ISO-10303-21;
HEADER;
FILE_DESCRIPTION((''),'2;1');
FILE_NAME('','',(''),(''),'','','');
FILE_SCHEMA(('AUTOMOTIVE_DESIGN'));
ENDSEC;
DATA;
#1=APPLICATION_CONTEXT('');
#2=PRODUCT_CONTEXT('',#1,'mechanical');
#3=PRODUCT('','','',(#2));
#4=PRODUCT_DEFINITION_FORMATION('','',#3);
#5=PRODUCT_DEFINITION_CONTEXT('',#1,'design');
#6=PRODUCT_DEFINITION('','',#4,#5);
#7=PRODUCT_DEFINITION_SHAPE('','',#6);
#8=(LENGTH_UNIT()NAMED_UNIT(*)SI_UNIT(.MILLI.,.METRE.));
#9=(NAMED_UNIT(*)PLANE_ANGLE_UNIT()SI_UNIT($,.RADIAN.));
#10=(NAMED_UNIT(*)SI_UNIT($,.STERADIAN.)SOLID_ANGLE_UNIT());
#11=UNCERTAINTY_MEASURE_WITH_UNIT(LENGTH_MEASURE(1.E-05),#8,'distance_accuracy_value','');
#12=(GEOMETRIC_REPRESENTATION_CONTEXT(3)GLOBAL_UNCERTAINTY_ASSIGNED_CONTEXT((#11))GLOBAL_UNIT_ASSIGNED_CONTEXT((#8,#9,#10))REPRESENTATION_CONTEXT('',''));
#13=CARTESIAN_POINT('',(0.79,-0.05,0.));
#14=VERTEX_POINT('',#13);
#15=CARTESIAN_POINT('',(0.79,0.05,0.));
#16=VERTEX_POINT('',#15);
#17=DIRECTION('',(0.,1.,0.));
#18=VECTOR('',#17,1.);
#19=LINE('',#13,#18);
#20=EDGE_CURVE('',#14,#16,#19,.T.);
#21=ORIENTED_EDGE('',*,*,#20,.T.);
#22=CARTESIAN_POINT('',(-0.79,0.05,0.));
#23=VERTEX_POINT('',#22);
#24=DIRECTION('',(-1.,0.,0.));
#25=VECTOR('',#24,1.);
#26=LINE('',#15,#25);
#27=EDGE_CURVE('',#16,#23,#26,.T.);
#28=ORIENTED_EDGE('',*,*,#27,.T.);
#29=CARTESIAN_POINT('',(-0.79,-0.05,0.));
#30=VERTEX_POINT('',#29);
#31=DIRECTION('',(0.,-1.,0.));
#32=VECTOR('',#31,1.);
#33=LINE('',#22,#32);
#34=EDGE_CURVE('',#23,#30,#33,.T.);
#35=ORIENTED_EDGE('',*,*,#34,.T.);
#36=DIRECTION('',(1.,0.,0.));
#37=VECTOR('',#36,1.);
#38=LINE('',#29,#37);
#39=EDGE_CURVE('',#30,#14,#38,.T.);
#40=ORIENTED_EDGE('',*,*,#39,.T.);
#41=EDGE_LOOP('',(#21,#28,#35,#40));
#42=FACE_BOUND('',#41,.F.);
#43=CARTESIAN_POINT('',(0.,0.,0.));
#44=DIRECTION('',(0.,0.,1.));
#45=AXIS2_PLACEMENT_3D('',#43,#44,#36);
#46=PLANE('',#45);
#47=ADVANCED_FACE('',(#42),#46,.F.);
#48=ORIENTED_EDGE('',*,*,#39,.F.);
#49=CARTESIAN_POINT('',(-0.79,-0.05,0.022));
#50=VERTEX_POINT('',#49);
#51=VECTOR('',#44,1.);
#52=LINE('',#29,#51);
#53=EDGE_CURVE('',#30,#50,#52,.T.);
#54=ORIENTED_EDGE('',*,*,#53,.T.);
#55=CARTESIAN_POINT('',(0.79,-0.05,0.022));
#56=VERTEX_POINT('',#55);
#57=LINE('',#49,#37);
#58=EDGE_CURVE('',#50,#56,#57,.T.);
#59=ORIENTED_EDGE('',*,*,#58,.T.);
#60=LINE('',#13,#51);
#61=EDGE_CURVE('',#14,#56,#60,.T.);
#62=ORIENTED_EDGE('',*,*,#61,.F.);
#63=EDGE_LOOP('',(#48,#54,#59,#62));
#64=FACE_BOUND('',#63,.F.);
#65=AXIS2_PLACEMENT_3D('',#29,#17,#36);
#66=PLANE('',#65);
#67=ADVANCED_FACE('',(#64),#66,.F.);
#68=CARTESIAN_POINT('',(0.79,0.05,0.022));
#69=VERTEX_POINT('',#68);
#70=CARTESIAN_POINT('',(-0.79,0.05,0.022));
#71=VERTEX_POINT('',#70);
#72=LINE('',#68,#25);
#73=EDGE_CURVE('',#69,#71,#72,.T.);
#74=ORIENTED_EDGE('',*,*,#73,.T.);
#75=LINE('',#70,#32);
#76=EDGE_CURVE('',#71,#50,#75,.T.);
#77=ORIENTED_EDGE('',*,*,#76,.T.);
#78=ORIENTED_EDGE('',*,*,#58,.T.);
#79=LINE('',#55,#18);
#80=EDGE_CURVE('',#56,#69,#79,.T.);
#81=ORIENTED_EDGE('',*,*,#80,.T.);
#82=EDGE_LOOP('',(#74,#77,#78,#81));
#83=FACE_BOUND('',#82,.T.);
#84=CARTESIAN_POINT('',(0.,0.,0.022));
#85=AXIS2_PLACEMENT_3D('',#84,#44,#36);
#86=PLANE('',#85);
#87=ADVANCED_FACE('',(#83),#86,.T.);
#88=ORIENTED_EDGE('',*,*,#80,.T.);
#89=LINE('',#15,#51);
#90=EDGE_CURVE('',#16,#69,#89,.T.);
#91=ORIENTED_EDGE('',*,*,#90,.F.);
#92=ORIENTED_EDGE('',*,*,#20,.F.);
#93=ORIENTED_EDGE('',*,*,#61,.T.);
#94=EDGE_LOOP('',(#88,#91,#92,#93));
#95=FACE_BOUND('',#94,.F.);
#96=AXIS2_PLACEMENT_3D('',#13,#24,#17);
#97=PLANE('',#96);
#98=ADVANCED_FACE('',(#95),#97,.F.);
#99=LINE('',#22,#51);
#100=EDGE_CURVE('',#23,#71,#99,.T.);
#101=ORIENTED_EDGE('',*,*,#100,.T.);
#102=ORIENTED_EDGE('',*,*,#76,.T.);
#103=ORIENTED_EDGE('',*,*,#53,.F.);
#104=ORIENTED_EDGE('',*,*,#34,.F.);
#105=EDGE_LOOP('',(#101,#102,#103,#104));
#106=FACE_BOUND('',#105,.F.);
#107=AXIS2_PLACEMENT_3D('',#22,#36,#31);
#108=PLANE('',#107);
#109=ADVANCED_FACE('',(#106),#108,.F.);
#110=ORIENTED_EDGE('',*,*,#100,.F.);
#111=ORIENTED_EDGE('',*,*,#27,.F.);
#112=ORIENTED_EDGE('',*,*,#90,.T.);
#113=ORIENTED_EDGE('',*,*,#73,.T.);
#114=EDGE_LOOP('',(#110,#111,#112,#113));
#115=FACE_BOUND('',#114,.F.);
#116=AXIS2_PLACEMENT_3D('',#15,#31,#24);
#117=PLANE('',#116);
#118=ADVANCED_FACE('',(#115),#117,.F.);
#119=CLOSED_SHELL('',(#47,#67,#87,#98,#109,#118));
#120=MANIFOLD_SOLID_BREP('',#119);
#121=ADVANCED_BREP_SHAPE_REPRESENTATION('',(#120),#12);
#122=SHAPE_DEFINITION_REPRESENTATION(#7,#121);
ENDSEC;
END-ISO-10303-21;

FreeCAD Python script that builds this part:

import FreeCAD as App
import Part
import Sketcher

doc = App.newDocument("Part")
body = doc.addObject("PartDesign::Body", "Body")

# Sketch on XY plane
sketch1 = body.newObject("Sketcher::SketchObject", "Sketch")
sketch1.AttachmentSupport = (doc.getObject("XY_Plane"), [""])
sketch1.MapMode = "FlatFace"
sketch1.addGeometry([
    Part.LineSegment(App.Vector(-0.79, 0.05, 0), App.Vector(-0.79, -0.05, 0)),
    Part.LineSegment(App.Vector(-0.79, -0.05, 0), App.Vector(0.79, -0.05, 0)),
    Part.LineSegment(App.Vector(0.79, -0.05, 0), App.Vector(0.79, 0.05, 0)),
    Part.LineSegment(App.Vector(0.79, 0.05, 0), App.Vector(-0.79, 0.05, 0)),
], False)
sketch1.addConstraint([
    Sketcher.Constraint("Coincident", 0, 2, 1, 1),
    Sketcher.Constraint("Coincident", 1, 2, 2, 1),
    Sketcher.Constraint("Coincident", 2, 2, 3, 1),
    Sketcher.Constraint("Coincident", 3, 2, 0, 1),
    Sketcher.Constraint("Vertical", 0),
    Sketcher.Constraint("Horizontal", 1),
    Sketcher.Constraint("Vertical", 2),
    Sketcher.Constraint("Horizontal", 3),
    Sketcher.Constraint("Symmetric", 0, 2, 2, 2, -1, 1),
    Sketcher.Constraint("DistanceX", 0, 2, -1, 1, 0.79),
    Sketcher.Constraint("DistanceY", 0, 2, 0, 1, 0.1),
])
pad1 = body.newObject("PartDesign::Pad", "Pad")
pad1.Profile = sketch1
pad1.Length = 0.022

doc.recompute()
